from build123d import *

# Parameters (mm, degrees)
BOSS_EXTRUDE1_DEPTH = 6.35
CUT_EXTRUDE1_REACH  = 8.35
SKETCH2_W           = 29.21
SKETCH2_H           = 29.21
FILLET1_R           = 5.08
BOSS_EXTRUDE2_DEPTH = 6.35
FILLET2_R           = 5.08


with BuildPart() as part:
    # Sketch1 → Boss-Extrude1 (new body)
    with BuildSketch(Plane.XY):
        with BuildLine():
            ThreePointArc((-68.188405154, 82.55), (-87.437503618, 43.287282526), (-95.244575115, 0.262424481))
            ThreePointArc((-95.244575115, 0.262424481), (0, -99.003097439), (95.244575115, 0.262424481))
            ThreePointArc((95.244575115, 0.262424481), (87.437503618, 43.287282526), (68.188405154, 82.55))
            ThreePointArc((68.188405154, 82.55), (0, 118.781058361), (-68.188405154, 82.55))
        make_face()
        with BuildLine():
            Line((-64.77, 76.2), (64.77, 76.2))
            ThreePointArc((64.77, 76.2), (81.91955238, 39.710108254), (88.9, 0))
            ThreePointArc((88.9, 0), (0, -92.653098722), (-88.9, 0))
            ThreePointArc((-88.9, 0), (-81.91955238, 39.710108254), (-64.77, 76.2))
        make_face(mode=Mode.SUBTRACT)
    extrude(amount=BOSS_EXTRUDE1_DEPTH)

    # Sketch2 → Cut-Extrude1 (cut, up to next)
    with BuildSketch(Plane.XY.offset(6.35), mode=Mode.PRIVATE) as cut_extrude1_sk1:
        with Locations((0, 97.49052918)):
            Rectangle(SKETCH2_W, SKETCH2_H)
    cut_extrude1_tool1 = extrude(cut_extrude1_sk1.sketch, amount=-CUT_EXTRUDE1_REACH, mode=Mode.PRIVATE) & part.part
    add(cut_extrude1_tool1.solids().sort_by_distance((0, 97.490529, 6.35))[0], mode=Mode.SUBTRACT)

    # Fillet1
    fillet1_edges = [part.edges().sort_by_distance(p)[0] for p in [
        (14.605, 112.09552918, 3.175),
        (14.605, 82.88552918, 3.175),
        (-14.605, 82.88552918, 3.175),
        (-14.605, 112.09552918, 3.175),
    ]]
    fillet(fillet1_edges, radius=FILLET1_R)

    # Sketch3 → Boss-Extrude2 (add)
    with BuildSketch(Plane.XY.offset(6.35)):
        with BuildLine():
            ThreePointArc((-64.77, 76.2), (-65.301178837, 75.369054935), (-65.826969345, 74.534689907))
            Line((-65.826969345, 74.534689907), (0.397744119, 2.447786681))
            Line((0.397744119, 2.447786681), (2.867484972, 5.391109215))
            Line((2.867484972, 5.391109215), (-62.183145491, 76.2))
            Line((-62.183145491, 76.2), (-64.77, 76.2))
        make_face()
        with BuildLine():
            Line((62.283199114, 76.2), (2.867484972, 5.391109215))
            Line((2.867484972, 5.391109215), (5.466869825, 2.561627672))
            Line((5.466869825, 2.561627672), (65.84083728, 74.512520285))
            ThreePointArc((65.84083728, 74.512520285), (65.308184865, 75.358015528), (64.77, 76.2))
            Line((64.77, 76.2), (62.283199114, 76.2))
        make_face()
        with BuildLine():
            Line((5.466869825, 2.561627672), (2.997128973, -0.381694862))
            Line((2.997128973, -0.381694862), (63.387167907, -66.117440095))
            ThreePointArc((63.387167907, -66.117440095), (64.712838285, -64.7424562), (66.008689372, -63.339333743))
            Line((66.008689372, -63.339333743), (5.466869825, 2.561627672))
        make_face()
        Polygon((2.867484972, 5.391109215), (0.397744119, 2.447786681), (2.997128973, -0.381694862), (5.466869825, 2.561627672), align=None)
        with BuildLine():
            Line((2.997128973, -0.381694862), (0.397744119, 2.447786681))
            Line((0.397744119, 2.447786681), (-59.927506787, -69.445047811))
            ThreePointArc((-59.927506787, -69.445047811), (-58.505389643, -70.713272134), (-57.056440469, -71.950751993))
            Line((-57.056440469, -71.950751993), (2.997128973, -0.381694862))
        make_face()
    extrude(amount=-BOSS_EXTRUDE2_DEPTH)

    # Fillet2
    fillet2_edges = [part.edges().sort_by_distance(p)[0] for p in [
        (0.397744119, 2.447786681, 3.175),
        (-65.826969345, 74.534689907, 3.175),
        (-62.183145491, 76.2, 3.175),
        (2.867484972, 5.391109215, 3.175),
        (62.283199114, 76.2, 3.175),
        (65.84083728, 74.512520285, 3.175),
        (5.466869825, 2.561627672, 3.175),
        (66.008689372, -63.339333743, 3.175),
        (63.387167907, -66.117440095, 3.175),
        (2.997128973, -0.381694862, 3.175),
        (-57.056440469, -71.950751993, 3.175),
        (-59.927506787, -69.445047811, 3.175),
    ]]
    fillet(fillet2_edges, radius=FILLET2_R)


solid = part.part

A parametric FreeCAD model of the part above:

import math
import FreeCAD as App
import Part
import Sketcher
Q = App.Units.Quantity


def edges_at(feature, points):
    """Names of the edges that pass closest to the given points."""
    edges = feature.Shape.Edges
    near = lambda p: min(range(len(edges)), key=lambda i: edges[i].distToShape(Part.Vertex(*p))[0])
    return sorted({f"Edge{near(p) + 1}" for p in points})

doc = App.newDocument("Part")
body = doc.addObject("PartDesign::Body", "Body")

# Sketch on XY plane
sketch1 = body.newObject("Sketcher::SketchObject", "Sketch")
sketch1.AttachmentSupport = (doc.getObject("XY_Plane"), [""])
sketch1.MapMode = "FlatFace"
sketch1.addGeometry(Part.ArcOfCircle(Part.Circle(App.Vector(63, -6, 0), App.Vector(0, 0, 1), 159), math.radians(146), math.radians(178)), False)
sketch1.addGeometry(Part.ArcOfCircle(Part.Circle(App.Vector(0, -4, 0), App.Vector(0, 0, 1), 95), math.radians(178), math.radians(362)), False)
sketch1.addGeometry(Part.ArcOfCircle(Part.Circle(App.Vector(-63, -6, 0), App.Vector(0, 0, 1), 159), math.radians(2), math.radians(34)), False)
sketch1.addGeometry(Part.ArcOfCircle(Part.Circle(App.Vector(0, 36, 0), App.Vector(0, 0, 1), 82), math.radians(34), math.radians(146)), False)
sketch1.addGeometry(Part.ArcOfCircle(Part.Circle(App.Vector(63, -6, 0), App.Vector(0, 0, 1), 152), math.radians(147), math.radians(178)), False)
sketch1.addGeometry(Part.LineSegment(App.Vector(-65, 76, 0), App.Vector(65, 76, 0)), False)
sketch1.addGeometry(Part.ArcOfCircle(Part.Circle(App.Vector(-63, -6, 0), App.Vector(0, 0, 1), 152), math.radians(2), math.radians(33)), False)
sketch1.addGeometry(Part.ArcOfCircle(Part.Circle(App.Vector(0, -4, 0), App.Vector(0, 0, 1), 89), math.radians(178), math.radians(362)), False)
sketch1.addConstraint(Sketcher.Constraint("Tangent", 0, 2, 1, 1))
sketch1.addConstraint(Sketcher.Constraint("Tangent", 1, 2, 2, 1))
sketch1.addConstraint(Sketcher.Constraint("Tangent", 2, 2, 3, 1))
sketch1.addConstraint(Sketcher.Constraint("Tangent", 3, 2, 0, 1))
sketch1.addConstraint(Sketcher.Constraint("Coincident", 4, 1, 5, 1))
sketch1.addConstraint(Sketcher.Constraint("Coincident", 5, 2, 6, 2))
sketch1.addConstraint(Sketcher.Constraint("Tangent", 6, 1, 7, 2))
sketch1.addConstraint(Sketcher.Constraint("Tangent", 7, 1, 4, 2))
sketch1.addConstraint(Sketcher.Constraint("Horizontal", 5))
sketch1.addConstraint(Sketcher.Constraint("Coincident", 4, 3, 0, 3))
sketch1.addConstraint(Sketcher.Constraint("Coincident", 6, 3, 2, 3))
sketch1.addConstraint(Sketcher.Constraint("Coincident", 7, 3, 1, 3))
sketch1.addConstraint(Sketcher.Constraint("Equal", 0, 2))
sketch1.addConstraint(Sketcher.Constraint("Symmetric", 6, 1, 7, 1, -1, 1))
sketch1.addConstraint(Sketcher.Constraint("PointOnObject", 1, 3, -2))
sketch1.addConstraint(Sketcher.Constraint("Radius", 4, Q("6 in")))
sketch1.addConstraint(Sketcher.Constraint("Radius", 0, Q("6.25 in")))
sketch1.addConstraint(Sketcher.Constraint("DistanceX", 5, 1, 5, 2, Q("5.1 in")))
sketch1.addConstraint(Sketcher.Constraint("DistanceY", -1, 1, 4, 1, Q("3 in")))
sketch1.addConstraint(Sketcher.Constraint("DistanceX", -1, 1, 6, 1, Q("3.5 in")))
sketch1.addConstraint(Sketcher.Constraint("DistanceY", -1, 1, 2, 2, Q("3.25 in")))
pad1 = body.newObject("PartDesign::Pad", "Pad")
pad1.Profile = sketch1
pad1.Length = Q("0.25 in")

# Sketch on XY plane
sketch2 = body.newObject("Sketcher::SketchObject", "Sketch001")
sketch2.AttachmentSupport = (doc.getObject("XY_Plane"), [""])
sketch2.MapMode = "FlatFace"
sketch2.AttachmentOffset = App.Placement(App.Vector(0, 0, 0.25 * 25.4), App.Rotation())
sketch2.addGeometry(Part.LineSegment(App.Vector(-15, 112, 0), App.Vector(-15, 83, 0)), False)
sketch2.addGeometry(Part.LineSegment(App.Vector(-15, 83, 0), App.Vector(15, 83, 0)), False)
sketch2.addGeometry(Part.LineSegment(App.Vector(15, 83, 0), App.Vector(15, 112, 0)), False)
sketch2.addGeometry(Part.LineSegment(App.Vector(15, 112, 0), App.Vector(-15, 112, 0)), False)
sketch2.addConstraint(Sketcher.Constraint("Coincident", 0, 2, 1, 1))
sketch2.addConstraint(Sketcher.Constraint("Coincident", 1, 2, 2, 1))
sketch2.addConstraint(Sketcher.Constraint("Coincident", 2, 2, 3, 1))
sketch2.addConstraint(Sketcher.Constraint("Coincident", 3, 2, 0, 1))
sketch2.addConstraint(Sketcher.Constraint("Vertical", 0))
sketch2.addConstraint(Sketcher.Constraint("Horizontal", 1))
sketch2.addConstraint(Sketcher.Constraint("Vertical", 2))
sketch2.addConstraint(Sketcher.Constraint("Horizontal", 3))
sketch2.addConstraint(Sketcher.Constraint("Equal", 3, 0))
sketch2.addConstraint(Sketcher.Constraint("DistanceX", 1, 1, 1, 2, Q("1.15 in")))
sketch2.addConstraint(Sketcher.Constraint("DistanceX", 0, 2, -1, 1, Q("0.575 in")))
sketch2.addConstraint(Sketcher.Constraint("DistanceY", -1, 1, 0, 2, Q("82.885529 mm")))
pocket1 = body.newObject("PartDesign::Pocket", "Pocket")
pocket1.Profile = sketch2
pocket1.Type = "UpToFirst"
doc.recompute()

fillet = body.newObject("PartDesign::Fillet", "Fillet")
fillet.Base = (pocket1, edges_at(pocket1, [
    (14.605, 112.096, 3.175),
    (14.605, 82.886, 3.175),
    (-14.605, 82.886, 3.175),
    (-14.605, 112.096, 3.175),
]))
fillet.Radius = Q("0.2 in")

# Sketch on XY plane
sketch3 = body.newObject("Sketcher::SketchObject", "Sketch002")
sketch3.AttachmentSupport = (doc.getObject("XY_Plane"), [""])
sketch3.MapMode = "FlatFace"
sketch3.AttachmentOffset = App.Placement(App.Vector(0, 0, 0.25 * 25.4), App.Rotation())
sketch3.addGeometry(Part.ArcOfCircle(Part.Circle(App.Vector(63.4, -6.3, 0), App.Vector(0, 0, 1), 152.4), math.radians(147.23), math.radians(147.97)), False)
sketch3.addGeometry(Part.LineSegment(App.Vector(-65.8, 74.5, 0), App.Vector(0.4, 2.4, 0)), False)
sketch3.addGeometry(Part.LineSegment(App.Vector(0.4, 2.4, 0), App.Vector(-59.9, -69.4, 0)), False)
sketch3.addGeometry(Part.ArcOfCircle(Part.Circle(App.Vector(0, -3.7, 0), App.Vector(0, 0, 1), 89), math.radians(-132.34), math.radians(-129.89)), False)
sketch3.addGeometry(Part.LineSegment(App.Vector(-57.1, -72, 0), App.Vector(3, -0.4, 0)), False)
sketch3.addGeometry(Part.LineSegment(App.Vector(3, -0.4, 0), App.Vector(63.4, -66.1, 0)), False)
sketch3.addGeometry(Part.ArcOfCircle(Part.Circle(App.Vector(0, -3.7, 0), App.Vector(0, 0, 1), 89), math.radians(-44.57), math.radians(-42.11)), False)
sketch3.addGeometry(Part.LineSegment(App.Vector(66, -63.3, 0), App.Vector(5.5, 2.6, 0)), False)
sketch3.addGeometry(Part.LineSegment(App.Vector(5.5, 2.6, 0), App.Vector(65.8, 74.5, 0)), False)
sketch3.addGeometry(Part.ArcOfCircle(Part.Circle(App.Vector(-63.4, -6.3, 0), App.Vector(0, 0, 1), 152.4), math.radians(32.02), math.radians(32.77)), False)
sketch3.addGeometry(Part.LineSegment(App.Vector(64.8, 76.2, 0), App.Vector(62.3, 76.2, 0)), False)
sketch3.addGeometry(Part.LineSegment(App.Vector(62.3, 76.2, 0), App.Vector(2.9, 5.4, 0)), False)
sketch3.addGeometry(Part.LineSegment(App.Vector(2.9, 5.4, 0), App.Vector(-62.2, 76.2, 0)), False)
sketch3.addGeometry(Part.LineSegment(App.Vector(-62.2, 76.2, 0), App.Vector(-64.8, 76.2, 0)), False)
sketch3.addConstraint(Sketcher.Constraint("Coincident", 0, 2, 1, 1))
sketch3.addConstraint(Sketcher.Constraint("Coincident", 1, 2, 2, 1))
sketch3.addConstraint(Sketcher.Constraint("Coincident", 2, 2, 3, 1))
sketch3.addConstraint(Sketcher.Constraint("Coincident", 3, 2, 4, 1))
sketch3.addConstraint(Sketcher.Constraint("Coincident", 4, 2, 5, 1))
sketch3.addConstraint(Sketcher.Constraint("Coincident", 5, 2, 6, 1))
sketch3.addConstraint(Sketcher.Constraint("Coincident", 6, 2, 7, 1))
sketch3.addConstraint(Sketcher.Constraint("Coincident", 7, 2, 8, 1))
sketch3.addConstraint(Sketcher.Constraint("Coincident", 8, 2, 9, 1))
sketch3.addConstraint(Sketcher.Constraint("Coincident", 9, 2, 10, 1))
sketch3.addConstraint(Sketcher.Constraint("Coincident", 10, 2, 11, 1))
sketch3.addConstraint(Sketcher.Constraint("Coincident", 11, 2, 12, 1))
sketch3.addConstraint(Sketcher.Constraint("Coincident", 12, 2, 13, 1))
sketch3.addConstraint(Sketcher.Constraint("Coincident", 13, 2, 0, 1))
sketch3.addConstraint(Sketcher.Constraint("Horizontal", 10))
sketch3.addConstraint(Sketcher.Constraint("Horizontal", 13))
sketch3.addConstraint(Sketcher.Constraint("Coincident", 6, 3, 3, 3))
sketch3.addConstraint(Sketcher.Constraint("Symmetric", 9, 2, 13, 2, -2))
sketch3.addConstraint(Sketcher.Constraint("PointOnObject", 3, 3, -2))
sketch3.addConstraint(Sketcher.Constraint("Parallel", 2, 4))
sketch3.addConstraint(Sketcher.Constraint("Parallel", 1, 5))
sketch3.addConstraint(Sketcher.Constraint("Parallel", 5, 7))
sketch3.addConstraint(Sketcher.Constraint("Parallel", 4, 8))
sketch3.addConstraint(Sketcher.Constraint("Parallel", 8, 11))
sketch3.addConstraint(Sketcher.Constraint("Parallel", 7, 12))
sketch3.addConstraint(Sketcher.Constraint("DistanceY", -1, 1, 9, 2, Q("3 in")))
sketch3.addConstraint(Sketcher.Constraint("Angle", 2, Q("-130 deg")))
sketch3.addConstraint(Sketcher.Constraint("DistanceX", -1, 1, 9, 2, Q("2.55 in")))
sketch3.addConstraint(Sketcher.Constraint("Radius", 0, Q("152.40002 mm")))
sketch3.addConstraint(Sketcher.Constraint("DistanceX", 10, 2, 10, 1, Q("2.486801 mm")))
sketch3.addConstraint(Sketcher.Constraint("Radius", 3, Q("88.976016 mm")))
sketch3.addConstraint(Sketcher.Constraint("Radius", 6, Q("88.976013 mm")))
sketch3.addConstraint(Sketcher.Constraint("Radius", 9, Q("152.400006 mm")))
sketch3.addConstraint(Sketcher.Constraint("DistanceY", 0, 3, -1, 1, Q("6.298198 mm")))
sketch3.addConstraint(Sketcher.Constraint("DistanceX", 9, 3, 2, 2, Q("3.442301 mm")))
sketch3.addConstraint(Sketcher.Constraint("Distance", 2, Q("93.84943 mm")))
sketch3.addConstraint(Sketcher.Constraint("Distance", 4, Q("93.426769 mm")))
sketch3.addConstraint(Sketcher.Constraint("Distance", 7, Q("89.488818 mm")))
sketch3.addConstraint(Sketcher.Constraint("Distance", 8, Q("93.92522 mm")))
sketch3.addConstraint(Sketcher.Constraint("DistanceX", 13, 2, 13, 1, Q("2.586855 mm")))
sketch3.addConstraint(Sketcher.Constraint("DistanceY", 9, 3, -1, 1, Q("6.298191 mm")))
sketch3.addConstraint(Sketcher.Constraint("DistanceX", 0, 2, -1, 1, Q("65.826969 mm")))
sketch3.addConstraint(Sketcher.Constraint("DistanceX", 3, 2, -1, 1, Q("57.05644 mm")))
sketch3.addConstraint(Sketcher.Constraint("DistanceY", 3, 2, -1, 1, Q("71.950752 mm")))
pad2 = body.newObject("PartDesign::Pad", "Pad001")
pad2.Profile = sketch3
pad2.Length = Q("0.25 in")
pad2.Reversed = True
doc.recompute()

fillet2 = body.newObject("PartDesign::Fillet", "Fillet001")
fillet2.Base = (pad2, edges_at(pad2, [
    (0.398, 2.448, 3.175),
    (-65.827, 74.535, 3.175),
    (-62.183, 76.2, 3.175),
    (2.867, 5.391, 3.175),
    (62.283, 76.2, 3.175),
    (65.841, 74.513, 3.175),
    (5.467, 2.562, 3.175),
    (66.009, -63.339, 3.175),
    (63.387, -66.117, 3.175),
    (2.997, -0.382, 3.175),
    (-57.056, -71.951, 3.175),
    (-59.928, -69.445, 3.175),
]))
fillet2.Radius = Q("0.2 in")

doc.recompute()
